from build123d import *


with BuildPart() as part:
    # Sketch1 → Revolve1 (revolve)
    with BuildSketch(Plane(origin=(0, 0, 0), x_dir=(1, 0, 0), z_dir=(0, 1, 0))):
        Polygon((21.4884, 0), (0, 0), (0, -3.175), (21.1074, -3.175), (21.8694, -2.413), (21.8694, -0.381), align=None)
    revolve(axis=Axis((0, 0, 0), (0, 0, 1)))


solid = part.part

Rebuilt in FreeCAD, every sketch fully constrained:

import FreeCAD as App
import Part
import Sketcher
from FreeCAD import Vector
Q = App.Units.Quantity

doc = App.newDocument("Part")
body = doc.addObject("PartDesign::Body", "Body")

sketch1 = doc.addObject("Sketcher::SketchObject", "Sketch")
body.addObject(sketch1)
sketch1.AttachmentSupport = (doc.XZ_Plane, [""])
sketch1.MapMode = "FlatFace"
sketch1.addGeometry(Part.LineSegment(Vector(21.5, 0, 0), Vector(0, 0, 0)), False)
sketch1.addGeometry(Part.LineSegment(Vector(0, 0, 0), Vector(0, 3.2, 0)), False)
sketch1.addGeometry(Part.LineSegment(Vector(0, 3.2, 0), Vector(21.1, 3.2, 0)), False)
sketch1.addGeometry(Part.LineSegment(Vector(21.1, 3.2, 0), Vector(21.9, 2.4, 0)), False)
sketch1.addGeometry(Part.LineSegment(Vector(21.9, 2.4, 0), Vector(21.9, 0.4, 0)), False)
sketch1.addGeometry(Part.LineSegment(Vector(21.9, 0.4, 0), Vector(21.5, 0, 0)), False)
sketch1.addConstraint(Sketcher.Constraint("Coincident", 0, 2, 1, 1))
sketch1.addConstraint(Sketcher.Constraint("Coincident", 1, 2, 2, 1))
sketch1.addConstraint(Sketcher.Constraint("Coincident", 2, 2, 3, 1))
sketch1.addConstraint(Sketcher.Constraint("Coincident", 3, 2, 4, 1))
sketch1.addConstraint(Sketcher.Constraint("Coincident", 4, 2, 5, 1))
sketch1.addConstraint(Sketcher.Constraint("Coincident", 5, 2, 0, 1))
sketch1.addConstraint(Sketcher.Constraint("Horizontal", 0))
sketch1.addConstraint(Sketcher.Constraint("Vertical", 1))
sketch1.addConstraint(Sketcher.Constraint("Horizontal", 2))
sketch1.addConstraint(Sketcher.Constraint("Vertical", 4))
sketch1.addConstraint(Sketcher.Constraint("Coincident", 0, 2, -1, 1))
sketch1.addConstraint(Sketcher.Constraint("Perpendicular", 3, 5))
sketch1.addConstraint(Sketcher.Constraint("Angle", 3, Q("-45 deg")))
sketch1.addConstraint(Sketcher.Constraint("DistanceY", 4, 2, 4, 1, Q("0.08 in")))
sketch1.addConstraint(Sketcher.Constraint("DistanceX", 0, 2, 0, 1, Q("0.846 in")))
sketch1.addConstraint(Sketcher.Constraint("DistanceX", 2, 1, 2, 2, Q("0.831 in")))
sketch1.addConstraint(Sketcher.Constraint("DistanceY", 1, 1, 1, 2, Q("0.125 in")))
revolution = doc.addObject("PartDesign::Revolution", "Revolution")
body.addObject(revolution)
revolution.Profile = sketch1
revolution.ReferenceAxis = (sketch1, ["V_Axis"])
revolution.Angle = 360

doc.recompute()
